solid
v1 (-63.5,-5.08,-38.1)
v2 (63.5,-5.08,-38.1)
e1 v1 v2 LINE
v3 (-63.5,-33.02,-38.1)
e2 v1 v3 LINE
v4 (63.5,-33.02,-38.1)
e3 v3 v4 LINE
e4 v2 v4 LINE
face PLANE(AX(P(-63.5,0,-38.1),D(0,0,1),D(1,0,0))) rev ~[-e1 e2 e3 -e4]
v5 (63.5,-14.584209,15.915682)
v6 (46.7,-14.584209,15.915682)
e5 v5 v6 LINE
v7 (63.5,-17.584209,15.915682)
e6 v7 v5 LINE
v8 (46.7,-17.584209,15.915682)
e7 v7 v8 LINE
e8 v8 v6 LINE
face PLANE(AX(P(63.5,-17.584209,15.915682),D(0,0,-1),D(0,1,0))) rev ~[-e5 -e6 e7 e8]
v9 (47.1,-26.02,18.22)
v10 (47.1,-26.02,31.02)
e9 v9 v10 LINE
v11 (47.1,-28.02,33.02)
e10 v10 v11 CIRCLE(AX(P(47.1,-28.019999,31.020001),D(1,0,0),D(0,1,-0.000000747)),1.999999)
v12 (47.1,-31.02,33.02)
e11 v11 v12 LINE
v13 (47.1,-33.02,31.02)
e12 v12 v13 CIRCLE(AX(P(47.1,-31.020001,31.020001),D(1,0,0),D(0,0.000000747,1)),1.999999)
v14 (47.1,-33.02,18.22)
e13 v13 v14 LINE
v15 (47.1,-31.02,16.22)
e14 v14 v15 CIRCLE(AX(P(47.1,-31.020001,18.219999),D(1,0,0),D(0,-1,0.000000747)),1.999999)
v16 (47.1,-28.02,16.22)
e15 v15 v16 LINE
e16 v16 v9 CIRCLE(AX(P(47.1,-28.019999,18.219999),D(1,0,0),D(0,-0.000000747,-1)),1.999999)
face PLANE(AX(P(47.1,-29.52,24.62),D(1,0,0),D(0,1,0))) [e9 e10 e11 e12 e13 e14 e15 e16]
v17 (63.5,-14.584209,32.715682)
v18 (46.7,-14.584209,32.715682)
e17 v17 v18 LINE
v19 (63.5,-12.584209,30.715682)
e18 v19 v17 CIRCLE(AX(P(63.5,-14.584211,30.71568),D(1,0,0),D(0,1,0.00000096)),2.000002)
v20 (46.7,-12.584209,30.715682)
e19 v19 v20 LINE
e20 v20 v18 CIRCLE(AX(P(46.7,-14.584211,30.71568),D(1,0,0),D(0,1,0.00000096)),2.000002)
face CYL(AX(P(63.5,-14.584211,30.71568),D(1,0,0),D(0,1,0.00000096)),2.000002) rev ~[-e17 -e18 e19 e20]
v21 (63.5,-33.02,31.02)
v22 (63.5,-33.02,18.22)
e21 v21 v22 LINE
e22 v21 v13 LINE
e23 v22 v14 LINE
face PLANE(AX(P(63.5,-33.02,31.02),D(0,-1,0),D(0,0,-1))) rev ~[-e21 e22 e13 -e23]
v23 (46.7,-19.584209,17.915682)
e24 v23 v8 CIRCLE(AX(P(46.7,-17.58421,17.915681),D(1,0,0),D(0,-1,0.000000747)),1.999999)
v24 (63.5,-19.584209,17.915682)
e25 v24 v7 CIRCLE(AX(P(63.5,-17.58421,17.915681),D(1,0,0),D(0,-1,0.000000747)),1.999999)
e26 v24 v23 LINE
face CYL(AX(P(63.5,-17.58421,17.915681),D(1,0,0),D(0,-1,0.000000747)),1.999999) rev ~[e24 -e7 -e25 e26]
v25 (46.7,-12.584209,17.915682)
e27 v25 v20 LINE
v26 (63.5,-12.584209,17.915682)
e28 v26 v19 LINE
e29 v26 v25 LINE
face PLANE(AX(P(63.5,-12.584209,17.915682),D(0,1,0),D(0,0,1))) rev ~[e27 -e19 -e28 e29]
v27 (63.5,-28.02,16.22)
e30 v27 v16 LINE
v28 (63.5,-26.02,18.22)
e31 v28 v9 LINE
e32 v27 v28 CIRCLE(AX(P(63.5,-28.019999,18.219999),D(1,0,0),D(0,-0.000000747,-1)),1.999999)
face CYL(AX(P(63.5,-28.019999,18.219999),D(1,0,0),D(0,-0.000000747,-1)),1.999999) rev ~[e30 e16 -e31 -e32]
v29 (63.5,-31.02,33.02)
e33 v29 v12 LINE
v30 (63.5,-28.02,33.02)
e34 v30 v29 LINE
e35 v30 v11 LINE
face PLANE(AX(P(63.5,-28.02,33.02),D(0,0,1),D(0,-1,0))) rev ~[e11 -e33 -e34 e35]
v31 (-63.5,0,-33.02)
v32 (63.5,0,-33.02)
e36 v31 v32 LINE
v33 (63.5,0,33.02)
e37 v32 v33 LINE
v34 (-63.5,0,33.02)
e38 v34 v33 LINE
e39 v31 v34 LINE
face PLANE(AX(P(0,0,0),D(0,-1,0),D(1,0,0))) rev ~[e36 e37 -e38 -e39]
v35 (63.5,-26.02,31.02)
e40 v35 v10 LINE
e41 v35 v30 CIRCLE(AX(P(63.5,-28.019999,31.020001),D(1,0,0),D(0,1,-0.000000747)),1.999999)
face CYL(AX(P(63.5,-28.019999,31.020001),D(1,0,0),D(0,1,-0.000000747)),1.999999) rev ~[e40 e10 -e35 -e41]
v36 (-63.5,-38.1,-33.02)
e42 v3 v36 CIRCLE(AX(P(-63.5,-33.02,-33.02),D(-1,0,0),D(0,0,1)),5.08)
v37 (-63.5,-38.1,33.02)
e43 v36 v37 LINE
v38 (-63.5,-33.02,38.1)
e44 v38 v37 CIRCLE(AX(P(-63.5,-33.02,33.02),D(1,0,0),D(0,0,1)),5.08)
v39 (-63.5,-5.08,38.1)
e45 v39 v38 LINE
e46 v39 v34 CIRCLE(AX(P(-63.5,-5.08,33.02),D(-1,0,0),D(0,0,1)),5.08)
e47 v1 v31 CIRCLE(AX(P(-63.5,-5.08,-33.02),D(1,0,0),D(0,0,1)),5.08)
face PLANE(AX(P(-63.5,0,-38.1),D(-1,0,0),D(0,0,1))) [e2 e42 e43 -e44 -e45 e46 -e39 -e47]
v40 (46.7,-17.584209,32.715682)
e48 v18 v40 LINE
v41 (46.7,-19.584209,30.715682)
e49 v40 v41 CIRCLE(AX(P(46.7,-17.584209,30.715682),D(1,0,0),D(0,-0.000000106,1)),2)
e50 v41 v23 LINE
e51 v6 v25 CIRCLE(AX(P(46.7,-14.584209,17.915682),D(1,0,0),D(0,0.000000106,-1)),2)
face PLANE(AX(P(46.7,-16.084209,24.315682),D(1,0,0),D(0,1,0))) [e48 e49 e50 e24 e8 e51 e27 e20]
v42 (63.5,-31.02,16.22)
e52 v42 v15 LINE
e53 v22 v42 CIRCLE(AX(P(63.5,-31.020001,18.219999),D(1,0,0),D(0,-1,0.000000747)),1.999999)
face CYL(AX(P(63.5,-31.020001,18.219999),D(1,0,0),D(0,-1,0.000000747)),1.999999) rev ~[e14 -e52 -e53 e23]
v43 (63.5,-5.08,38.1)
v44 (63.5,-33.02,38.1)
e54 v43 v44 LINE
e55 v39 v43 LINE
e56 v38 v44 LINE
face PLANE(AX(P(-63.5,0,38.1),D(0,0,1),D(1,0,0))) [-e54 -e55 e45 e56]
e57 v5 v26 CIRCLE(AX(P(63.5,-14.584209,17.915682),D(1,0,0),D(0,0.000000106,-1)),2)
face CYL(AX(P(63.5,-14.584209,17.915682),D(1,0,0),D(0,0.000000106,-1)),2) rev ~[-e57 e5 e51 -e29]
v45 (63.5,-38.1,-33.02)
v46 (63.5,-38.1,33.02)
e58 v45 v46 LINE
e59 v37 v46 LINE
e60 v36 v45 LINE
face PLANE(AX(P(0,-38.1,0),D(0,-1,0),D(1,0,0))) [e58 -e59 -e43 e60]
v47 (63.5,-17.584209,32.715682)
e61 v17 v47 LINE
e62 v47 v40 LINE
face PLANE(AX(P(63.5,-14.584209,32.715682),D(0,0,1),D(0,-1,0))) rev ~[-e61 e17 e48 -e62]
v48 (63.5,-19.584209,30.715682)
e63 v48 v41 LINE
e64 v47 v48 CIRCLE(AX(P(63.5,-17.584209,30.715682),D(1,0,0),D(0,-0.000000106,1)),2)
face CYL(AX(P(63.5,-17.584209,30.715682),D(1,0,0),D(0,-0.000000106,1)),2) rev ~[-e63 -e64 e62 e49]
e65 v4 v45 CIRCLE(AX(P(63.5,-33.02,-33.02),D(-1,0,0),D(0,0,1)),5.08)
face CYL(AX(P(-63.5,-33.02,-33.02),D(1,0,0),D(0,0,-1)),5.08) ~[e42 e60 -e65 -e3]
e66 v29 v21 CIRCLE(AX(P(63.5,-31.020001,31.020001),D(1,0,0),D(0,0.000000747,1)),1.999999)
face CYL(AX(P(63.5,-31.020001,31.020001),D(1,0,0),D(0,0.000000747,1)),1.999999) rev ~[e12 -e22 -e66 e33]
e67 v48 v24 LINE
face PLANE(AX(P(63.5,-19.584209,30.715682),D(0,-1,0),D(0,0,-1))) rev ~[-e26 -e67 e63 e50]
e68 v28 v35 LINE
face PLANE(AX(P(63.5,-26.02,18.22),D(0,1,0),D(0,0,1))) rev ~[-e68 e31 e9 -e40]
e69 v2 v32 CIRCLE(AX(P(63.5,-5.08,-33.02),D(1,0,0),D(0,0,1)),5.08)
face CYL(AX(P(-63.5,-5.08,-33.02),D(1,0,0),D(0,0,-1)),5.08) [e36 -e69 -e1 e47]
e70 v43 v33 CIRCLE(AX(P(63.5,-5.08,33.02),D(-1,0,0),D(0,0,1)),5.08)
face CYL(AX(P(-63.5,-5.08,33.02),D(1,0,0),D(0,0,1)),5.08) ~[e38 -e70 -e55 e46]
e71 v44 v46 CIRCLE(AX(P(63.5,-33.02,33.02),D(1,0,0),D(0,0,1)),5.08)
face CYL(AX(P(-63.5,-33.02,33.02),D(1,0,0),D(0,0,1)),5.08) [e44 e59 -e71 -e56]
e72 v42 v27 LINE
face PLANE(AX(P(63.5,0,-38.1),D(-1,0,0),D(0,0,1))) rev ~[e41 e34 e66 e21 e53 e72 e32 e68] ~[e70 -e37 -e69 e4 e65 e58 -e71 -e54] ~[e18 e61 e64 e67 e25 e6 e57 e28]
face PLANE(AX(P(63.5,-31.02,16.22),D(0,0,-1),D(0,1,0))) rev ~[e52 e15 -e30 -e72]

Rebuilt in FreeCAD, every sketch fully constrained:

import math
import FreeCAD as App
import Part
import Sketcher
Q = App.Units.Quantity


def edges_at(feature, points):
    """Names of the edges that pass closest to the given points."""
    edges = feature.Shape.Edges
    near = lambda p: min(range(len(edges)), key=lambda i: edges[i].distToShape(Part.Vertex(*p))[0])
    return sorted({f"Edge{near(p) + 1}" for p in points})

doc = App.newDocument("Part")
body = doc.addObject("PartDesign::Body", "Body")

sketch1 = body.newObject("Sketcher::SketchObject", "Sketch")
sketch1.AttachmentSupport = (doc.getObject("XZ_Plane"), [""])
sketch1.MapMode = "FlatFace"
sketch1.addGeometry([
    Part.LineSegment(App.Vector(-64, 38, 0), App.Vector(-64, -38, 0)),
    Part.LineSegment(App.Vector(-64, -38, 0), App.Vector(64, -38, 0)),
    Part.LineSegment(App.Vector(64, -38, 0), App.Vector(64, 38, 0)),
    Part.LineSegment(App.Vector(64, 38, 0), App.Vector(-64, 38, 0)),
], False)
sketch1.addConstraint([
    Sketcher.Constraint("Coincident", 0, 2, 1, 1),
    Sketcher.Constraint("Coincident", 1, 2, 2, 1),
    Sketcher.Constraint("Coincident", 2, 2, 3, 1),
    Sketcher.Constraint("Coincident", 3, 2, 0, 1),
    Sketcher.Constraint("Vertical", 0),
    Sketcher.Constraint("Horizontal", 1),
    Sketcher.Constraint("Vertical", 2),
    Sketcher.Constraint("Horizontal", 3),
    Sketcher.Constraint("Symmetric", 0, 2, 2, 2, -1, 1),
    Sketcher.Constraint("DistanceX", 1, 1, 1, 2, Q("127 mm")),
    Sketcher.Constraint("DistanceY", 0, 2, 0, 1, Q("76.2 mm")),
])
pad1 = body.newObject("PartDesign::Pad", "Pad")
pad1.Profile = sketch1
pad1.Length = 38.1
doc.recompute()

fillet = body.newObject("PartDesign::Fillet", "Fillet")
fillet.Base = (pad1, edges_at(pad1, [
    (0, -38.1, 38.1),
    (0, 0, 38.1),
    (0, -38.1, -38.1),
    (0, 0, -38.1),
]))
fillet.Radius = 5.08

sketch2 = body.newObject("Sketcher::SketchObject", "Sketch001")
sketch2.AttachmentSupport = (doc.getObject("YZ_Plane"), [""])
sketch2.MapMode = "FlatFace"
sketch2.AttachmentOffset = App.Placement(App.Vector(0, 0, 63.5), App.Rotation())
sketch2.addGeometry([
    Part.LineSegment(App.Vector(-28, 33, 0), App.Vector(-31, 33, 0)),
    Part.ArcOfCircle(Part.Circle(App.Vector(-31, 31, 0), App.Vector(0, 0, 1), 2), math.radians(90), math.radians(180)),
    Part.LineSegment(App.Vector(-33, 31, 0), App.Vector(-33, 18.2, 0)),
    Part.ArcOfCircle(Part.Circle(App.Vector(-31, 18.2, 0), App.Vector(0, 0, 1), 2), math.radians(180), math.radians(270)),
    Part.LineSegment(App.Vector(-31, 16.2, 0), App.Vector(-28, 16.2, 0)),
    Part.ArcOfCircle(Part.Circle(App.Vector(-28, 18.2, 0), App.Vector(0, 0, 1), 2), math.radians(-90), math.radians(0)),
    Part.LineSegment(App.Vector(-26, 18.2, 0), App.Vector(-26, 31, 0)),
    Part.ArcOfCircle(Part.Circle(App.Vector(-28, 31, 0), App.Vector(0, 0, 1), 2), math.radians(0), math.radians(90)),
], False)
sketch2.addConstraint([
    Sketcher.Constraint("Tangent", 0, 2, 1, 1),
    Sketcher.Constraint("Tangent", 1, 2, 2, 1),
    Sketcher.Constraint("Tangent", 2, 2, 3, 1),
    Sketcher.Constraint("Tangent", 3, 2, 4, 1),
    Sketcher.Constraint("Tangent", 4, 2, 5, 1),
    Sketcher.Constraint("Tangent", 5, 2, 6, 1),
    Sketcher.Constraint("Tangent", 6, 2, 7, 1),
    Sketcher.Constraint("Tangent", 7, 2, 0, 1),
    Sketcher.Constraint("Horizontal", 0),
    Sketcher.Constraint("Vertical", 2),
    Sketcher.Constraint("Horizontal", 4),
    Sketcher.Constraint("Vertical", 6),
    Sketcher.Constraint("Equal", 1, 3),
    Sketcher.Constraint("Equal", 3, 5),
    Sketcher.Constraint("Equal", 5, 7),
    Sketcher.Constraint("Radius", 1, Q("1.999999 mm")),
    Sketcher.Constraint("DistanceX", 0, 2, 0, 1, Q("3 mm")),
    Sketcher.Constraint("DistanceY", 2, 2, 2, 1, Q("12.8 mm")),
    Sketcher.Constraint("DistanceX", 1, 3, -1, 1, Q("31.020001 mm")),
    Sketcher.Constraint("DistanceY", -1, 1, 1, 3, Q("31.020001 mm")),
])
pocket1 = body.newObject("PartDesign::Pocket", "Pocket")
pocket1.Profile = sketch2
pocket1.Length = 16.4

sketch3 = body.newObject("Sketcher::SketchObject", "Sketch002")
sketch3.AttachmentSupport = (doc.getObject("YZ_Plane"), [""])
sketch3.MapMode = "FlatFace"
sketch3.AttachmentOffset = App.Placement(App.Vector(0, 0, 63.5), App.Rotation())
sketch3.addGeometry([
    Part.LineSegment(App.Vector(-14.6, 32.7, 0), App.Vector(-17.6, 32.7, 0)),
    Part.ArcOfCircle(Part.Circle(App.Vector(-17.6, 30.7, 0), App.Vector(0, 0, 1), 2), math.radians(90), math.radians(180)),
    Part.LineSegment(App.Vector(-19.6, 30.7, 0), App.Vector(-19.6, 17.9, 0)),
    Part.ArcOfCircle(Part.Circle(App.Vector(-17.6, 17.9, 0), App.Vector(0, 0, 1), 2), math.radians(180), math.radians(270)),
    Part.LineSegment(App.Vector(-17.6, 15.9, 0), App.Vector(-14.6, 15.9, 0)),
    Part.ArcOfCircle(Part.Circle(App.Vector(-14.6, 17.9, 0), App.Vector(0, 0, 1), 2), math.radians(-90), math.radians(0)),
    Part.LineSegment(App.Vector(-12.6, 17.9, 0), App.Vector(-12.6, 30.7, 0)),
    Part.ArcOfCircle(Part.Circle(App.Vector(-14.6, 30.7, 0), App.Vector(0, 0, 1), 2), math.radians(0), math.radians(90)),
], False)
sketch3.addConstraint([
    Sketcher.Constraint("Tangent", 0, 2, 1, 1),
    Sketcher.Constraint("Tangent", 1, 2, 2, 1),
    Sketcher.Constraint("Tangent", 2, 2, 3, 1),
    Sketcher.Constraint("Tangent", 3, 2, 4, 1),
    Sketcher.Constraint("Tangent", 4, 2, 5, 1),
    Sketcher.Constraint("Tangent", 5, 2, 6, 1),
    Sketcher.Constraint("Tangent", 6, 2, 7, 1),
    Sketcher.Constraint("Tangent", 7, 2, 0, 1),
    Sketcher.Constraint("Horizontal", 0),
    Sketcher.Constraint("Vertical", 2),
    Sketcher.Constraint("Horizontal", 4),
    Sketcher.Constraint("Vertical", 6),
    Sketcher.Constraint("Equal", 1, 3),
    Sketcher.Constraint("Equal", 3, 5),
    Sketcher.Constraint("Equal", 5, 7),
    Sketcher.Constraint("Radius", 1, Q("2 mm")),
    Sketcher.Constraint("DistanceX", 0, 2, 0, 1, Q("3 mm")),
    Sketcher.Constraint("DistanceY", 2, 2, 2, 1, Q("12.8 mm")),
    Sketcher.Constraint("DistanceX", 1, 3, -1, 1, Q("17.584209 mm")),
    Sketcher.Constraint("DistanceY", -1, 1, 1, 3, Q("30.715682 mm")),
])
pocket2 = body.newObject("PartDesign::Pocket", "Pocket001")
pocket2.Profile = sketch3
pocket2.Length = 16.8

doc.recompute()
